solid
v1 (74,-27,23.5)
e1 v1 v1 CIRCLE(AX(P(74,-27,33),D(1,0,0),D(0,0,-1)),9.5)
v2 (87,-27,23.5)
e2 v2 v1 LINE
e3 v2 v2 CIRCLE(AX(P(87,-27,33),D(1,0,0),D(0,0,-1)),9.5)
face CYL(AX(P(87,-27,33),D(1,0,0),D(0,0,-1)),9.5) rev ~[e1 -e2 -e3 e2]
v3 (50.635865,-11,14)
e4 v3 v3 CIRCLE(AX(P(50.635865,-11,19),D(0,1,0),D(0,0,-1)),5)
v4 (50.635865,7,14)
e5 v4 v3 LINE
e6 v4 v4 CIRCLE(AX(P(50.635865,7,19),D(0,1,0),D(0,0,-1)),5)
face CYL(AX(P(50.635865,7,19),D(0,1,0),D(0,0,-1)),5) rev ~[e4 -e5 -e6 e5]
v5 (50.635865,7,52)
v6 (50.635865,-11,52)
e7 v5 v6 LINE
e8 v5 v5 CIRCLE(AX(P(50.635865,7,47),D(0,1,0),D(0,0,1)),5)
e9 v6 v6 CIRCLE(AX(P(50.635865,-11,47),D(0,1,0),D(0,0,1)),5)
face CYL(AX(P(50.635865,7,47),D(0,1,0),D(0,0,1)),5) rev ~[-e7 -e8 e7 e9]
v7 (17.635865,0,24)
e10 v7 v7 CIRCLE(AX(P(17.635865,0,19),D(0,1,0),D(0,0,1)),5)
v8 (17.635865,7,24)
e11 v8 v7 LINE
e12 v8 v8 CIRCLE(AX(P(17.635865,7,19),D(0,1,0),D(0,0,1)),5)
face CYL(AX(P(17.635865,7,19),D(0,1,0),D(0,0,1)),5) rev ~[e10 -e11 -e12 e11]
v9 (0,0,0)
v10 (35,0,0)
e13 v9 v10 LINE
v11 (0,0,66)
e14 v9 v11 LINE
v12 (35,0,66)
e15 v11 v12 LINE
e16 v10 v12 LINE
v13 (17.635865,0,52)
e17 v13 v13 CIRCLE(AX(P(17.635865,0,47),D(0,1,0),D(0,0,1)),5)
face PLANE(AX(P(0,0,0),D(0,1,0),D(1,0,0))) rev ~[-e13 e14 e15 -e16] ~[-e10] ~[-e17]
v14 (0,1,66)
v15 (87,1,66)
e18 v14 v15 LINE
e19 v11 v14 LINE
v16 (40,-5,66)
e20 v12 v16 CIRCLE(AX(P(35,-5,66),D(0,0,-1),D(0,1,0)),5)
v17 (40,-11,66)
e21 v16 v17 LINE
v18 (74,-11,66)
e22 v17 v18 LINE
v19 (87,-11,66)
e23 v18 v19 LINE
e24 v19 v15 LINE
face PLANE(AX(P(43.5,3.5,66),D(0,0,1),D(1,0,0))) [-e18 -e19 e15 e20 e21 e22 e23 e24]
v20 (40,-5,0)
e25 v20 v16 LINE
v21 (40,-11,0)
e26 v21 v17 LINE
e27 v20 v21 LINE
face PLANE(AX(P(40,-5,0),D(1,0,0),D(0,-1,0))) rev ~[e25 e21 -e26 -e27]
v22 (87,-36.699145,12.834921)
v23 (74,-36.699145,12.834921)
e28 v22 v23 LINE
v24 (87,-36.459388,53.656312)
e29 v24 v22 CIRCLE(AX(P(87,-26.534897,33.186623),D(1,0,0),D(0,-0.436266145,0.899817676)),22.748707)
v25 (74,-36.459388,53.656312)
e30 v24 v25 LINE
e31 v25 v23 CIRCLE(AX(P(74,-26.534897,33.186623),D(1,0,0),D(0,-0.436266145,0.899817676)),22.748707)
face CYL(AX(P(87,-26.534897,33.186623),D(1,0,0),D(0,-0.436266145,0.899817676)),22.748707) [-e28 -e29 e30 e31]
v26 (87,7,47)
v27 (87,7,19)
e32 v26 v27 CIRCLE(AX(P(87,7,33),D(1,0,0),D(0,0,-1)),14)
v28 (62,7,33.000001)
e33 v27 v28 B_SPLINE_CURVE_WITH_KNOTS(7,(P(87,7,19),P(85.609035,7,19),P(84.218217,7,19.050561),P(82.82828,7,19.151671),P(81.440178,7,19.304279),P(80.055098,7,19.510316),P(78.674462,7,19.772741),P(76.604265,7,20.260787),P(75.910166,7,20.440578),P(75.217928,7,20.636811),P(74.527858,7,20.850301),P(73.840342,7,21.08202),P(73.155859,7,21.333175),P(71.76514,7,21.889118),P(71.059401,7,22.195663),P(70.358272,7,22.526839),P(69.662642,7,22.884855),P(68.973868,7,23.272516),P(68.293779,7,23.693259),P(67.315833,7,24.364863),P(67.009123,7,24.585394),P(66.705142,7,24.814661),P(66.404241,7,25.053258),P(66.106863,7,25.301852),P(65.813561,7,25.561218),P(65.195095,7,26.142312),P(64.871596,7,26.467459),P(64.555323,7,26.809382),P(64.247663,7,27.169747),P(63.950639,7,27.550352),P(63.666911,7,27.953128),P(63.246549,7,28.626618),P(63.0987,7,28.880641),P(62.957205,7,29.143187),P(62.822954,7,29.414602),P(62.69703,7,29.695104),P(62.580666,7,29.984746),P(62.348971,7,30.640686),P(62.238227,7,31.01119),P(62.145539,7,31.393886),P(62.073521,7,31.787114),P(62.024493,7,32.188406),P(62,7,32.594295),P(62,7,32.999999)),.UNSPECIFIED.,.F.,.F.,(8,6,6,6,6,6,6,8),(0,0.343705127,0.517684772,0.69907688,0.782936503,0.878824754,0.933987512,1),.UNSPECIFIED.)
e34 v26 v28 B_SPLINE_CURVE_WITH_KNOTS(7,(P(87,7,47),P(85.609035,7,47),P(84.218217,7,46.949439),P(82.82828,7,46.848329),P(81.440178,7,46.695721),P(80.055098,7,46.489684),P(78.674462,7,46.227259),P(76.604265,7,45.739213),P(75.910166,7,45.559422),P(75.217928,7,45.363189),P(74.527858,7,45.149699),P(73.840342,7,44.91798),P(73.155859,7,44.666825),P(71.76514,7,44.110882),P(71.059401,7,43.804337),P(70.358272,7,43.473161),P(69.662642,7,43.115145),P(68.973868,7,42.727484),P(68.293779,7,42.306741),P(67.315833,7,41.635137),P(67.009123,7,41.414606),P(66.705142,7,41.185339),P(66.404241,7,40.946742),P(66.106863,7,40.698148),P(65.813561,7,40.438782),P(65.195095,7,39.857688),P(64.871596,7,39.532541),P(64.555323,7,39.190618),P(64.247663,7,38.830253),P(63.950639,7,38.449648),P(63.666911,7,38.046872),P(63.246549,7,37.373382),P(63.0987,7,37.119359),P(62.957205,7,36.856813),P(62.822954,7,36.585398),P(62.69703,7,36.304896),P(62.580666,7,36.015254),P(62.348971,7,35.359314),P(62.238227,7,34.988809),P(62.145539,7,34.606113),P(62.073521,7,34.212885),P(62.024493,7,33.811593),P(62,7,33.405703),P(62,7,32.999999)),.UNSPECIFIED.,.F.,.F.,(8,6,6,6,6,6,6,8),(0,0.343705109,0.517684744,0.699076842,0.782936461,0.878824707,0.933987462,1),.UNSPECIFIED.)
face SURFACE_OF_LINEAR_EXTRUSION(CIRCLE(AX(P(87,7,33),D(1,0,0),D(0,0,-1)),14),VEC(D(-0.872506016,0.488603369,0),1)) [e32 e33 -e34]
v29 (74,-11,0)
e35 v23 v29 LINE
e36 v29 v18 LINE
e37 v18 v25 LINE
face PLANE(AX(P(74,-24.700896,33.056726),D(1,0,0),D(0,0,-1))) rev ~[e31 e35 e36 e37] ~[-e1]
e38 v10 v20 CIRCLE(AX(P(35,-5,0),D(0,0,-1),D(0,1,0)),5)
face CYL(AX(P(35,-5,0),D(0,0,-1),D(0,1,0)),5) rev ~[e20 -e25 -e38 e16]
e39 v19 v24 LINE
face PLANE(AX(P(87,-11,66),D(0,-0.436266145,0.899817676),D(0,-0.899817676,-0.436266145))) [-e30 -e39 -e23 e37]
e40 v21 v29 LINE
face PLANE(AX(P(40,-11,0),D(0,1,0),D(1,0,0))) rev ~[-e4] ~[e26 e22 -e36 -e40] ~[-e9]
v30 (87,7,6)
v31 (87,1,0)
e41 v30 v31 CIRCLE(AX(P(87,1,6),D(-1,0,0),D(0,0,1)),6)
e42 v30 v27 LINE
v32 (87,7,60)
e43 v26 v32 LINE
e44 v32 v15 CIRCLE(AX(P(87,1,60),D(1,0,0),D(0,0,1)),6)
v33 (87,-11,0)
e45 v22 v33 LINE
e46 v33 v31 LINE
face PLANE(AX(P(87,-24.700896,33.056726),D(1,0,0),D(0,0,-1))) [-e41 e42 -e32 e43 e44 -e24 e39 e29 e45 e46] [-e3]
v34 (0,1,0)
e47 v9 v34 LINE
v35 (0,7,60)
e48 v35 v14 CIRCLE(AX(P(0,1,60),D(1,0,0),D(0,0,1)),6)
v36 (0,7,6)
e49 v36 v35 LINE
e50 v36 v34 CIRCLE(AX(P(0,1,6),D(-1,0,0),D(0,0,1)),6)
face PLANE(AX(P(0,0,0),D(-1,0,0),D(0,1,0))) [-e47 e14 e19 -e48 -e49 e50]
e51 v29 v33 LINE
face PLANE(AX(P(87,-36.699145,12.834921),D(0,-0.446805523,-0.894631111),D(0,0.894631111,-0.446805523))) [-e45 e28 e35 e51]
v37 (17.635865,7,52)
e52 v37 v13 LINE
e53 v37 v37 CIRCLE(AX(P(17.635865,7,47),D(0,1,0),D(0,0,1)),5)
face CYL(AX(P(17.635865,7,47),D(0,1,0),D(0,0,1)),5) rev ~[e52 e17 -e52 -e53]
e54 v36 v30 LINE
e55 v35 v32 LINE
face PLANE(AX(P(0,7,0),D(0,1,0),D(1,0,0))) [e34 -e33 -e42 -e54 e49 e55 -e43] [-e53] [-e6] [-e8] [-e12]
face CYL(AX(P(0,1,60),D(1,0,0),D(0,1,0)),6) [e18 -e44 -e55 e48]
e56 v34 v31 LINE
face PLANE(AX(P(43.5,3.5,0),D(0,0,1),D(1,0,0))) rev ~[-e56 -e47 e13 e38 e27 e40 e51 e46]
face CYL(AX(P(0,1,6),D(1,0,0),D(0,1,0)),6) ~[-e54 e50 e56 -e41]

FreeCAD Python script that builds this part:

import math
import FreeCAD as App
import Part
import Sketcher

V = App.Vector


def edges_at(feature, points):
    """Names of the edges that pass closest to the given points."""
    edges = feature.Shape.Edges
    near = lambda p: min(range(len(edges)), key=lambda i: edges[i].distToShape(Part.Vertex(*p))[0])
    return sorted({f"Edge{near(p) + 1}" for p in points})

doc = App.newDocument("Part")
body = doc.addObject("PartDesign::Body", "Body")

# Sketch on XY plane
sketch1 = doc.addObject("Sketcher::SketchObject", "Sketch")
body.addObject(sketch1)
sketch1.AttachmentSupport = (doc.XY_Plane, [""])
sketch1.MapMode = "FlatFace"
sketch1.addGeometry(Part.LineSegment(V(0, 7, 0), V(0, 0, 0)), False)
sketch1.addGeometry(Part.LineSegment(V(0, 0, 0), V(35, 0, 0)), False)
sketch1.addGeometry(Part.ArcOfCircle(Part.Circle(V(35, -5, 0), V(0, 0, 1), 5), math.radians(0), math.radians(90)), False)
sketch1.addGeometry(Part.LineSegment(V(40, -5, 0), V(40, -11, 0)), False)
sketch1.addGeometry(Part.LineSegment(V(40, -11, 0), V(87, -11, 0)), False)
sketch1.addGeometry(Part.LineSegment(V(87, -11, 0), V(87, 7, 0)), False)
sketch1.addGeometry(Part.LineSegment(V(87, 7, 0), V(0, 7, 0)), False)
sketch1.addConstraint(Sketcher.Constraint("Coincident", 0, 2, 1, 1))
sketch1.addConstraint(Sketcher.Constraint("Tangent", 1, 2, 2, 2))
sketch1.addConstraint(Sketcher.Constraint("Tangent", 2, 1, 3, 1))
sketch1.addConstraint(Sketcher.Constraint("Coincident", 3, 2, 4, 1))
sketch1.addConstraint(Sketcher.Constraint("Coincident", 4, 2, 5, 1))
sketch1.addConstraint(Sketcher.Constraint("Coincident", 5, 2, 6, 1))
sketch1.addConstraint(Sketcher.Constraint("Coincident", 6, 2, 0, 1))
sketch1.addConstraint(Sketcher.Constraint("Vertical", 0))
sketch1.addConstraint(Sketcher.Constraint("Horizontal", 1))
sketch1.addConstraint(Sketcher.Constraint("Vertical", 3))
sketch1.addConstraint(Sketcher.Constraint("Horizontal", 4))
sketch1.addConstraint(Sketcher.Constraint("Vertical", 5))
sketch1.addConstraint(Sketcher.Constraint("Horizontal", 6))
sketch1.addConstraint(Sketcher.Constraint("Coincident", 0, 2, -1, 1))
sketch1.addConstraint(Sketcher.Constraint("Radius", 2, 5.0))
sketch1.addConstraint(Sketcher.Constraint("DistanceX", 1, 1, 1, 2, 35.0))
sketch1.addConstraint(Sketcher.Constraint("DistanceX", 4, 1, 4, 2, 47.0))
sketch1.addConstraint(Sketcher.Constraint("DistanceY", 0, 2, 0, 1, 7.0))
sketch1.addConstraint(Sketcher.Constraint("DistanceY", 3, 2, 3, 1, 6.0))
pad1 = doc.addObject("PartDesign::Pad", "Pad")
body.addObject(pad1)
pad1.Profile = sketch1
pad1.Length = 66
doc.recompute()

fillet = doc.addObject("PartDesign::Fillet", "Fillet")
body.addObject(fillet)
fillet.Base = (pad1, edges_at(pad1, [(43.5, 7, 66), (43.5, 7, 0)]))
fillet.Radius = 6

# Sketch on XZ plane
sketch2 = doc.addObject("Sketcher::SketchObject", "Sketch001")
body.addObject(sketch2)
sketch2.AttachmentSupport = (doc.XZ_Plane, [""])
sketch2.MapMode = "FlatFace"
sketch2.AttachmentOffset = App.Placement(V(0, 0, -7), App.Rotation())
sketch2.addGeometry(Part.Circle(V(51, 47, 0), V(0, 0, 1), 5), False)
sketch2.addGeometry(Part.Circle(V(18, 47, 0), V(0, 0, 1), 5), False)
sketch2.addGeometry(Part.Circle(V(51, 19, 0), V(0, 0, 1), 5), False)
sketch2.addGeometry(Part.Circle(V(18, 19, 0), V(0, 0, 1), 5), False)
sketch2.addConstraint(Sketcher.Constraint("Equal", 0, 1))
sketch2.addConstraint(Sketcher.Constraint("Equal", 1, 2))
sketch2.addConstraint(Sketcher.Constraint("Equal", 2, 3))
sketch2.addConstraint(Sketcher.Constraint("Horizontal", 0, 3, 1, 3))
sketch2.addConstraint(Sketcher.Constraint("Horizontal", 2, 3, 3, 3))
sketch2.addConstraint(Sketcher.Constraint("Vertical", 0, 3, 2, 3))
sketch2.addConstraint(Sketcher.Constraint("Vertical", 1, 3, 3, 3))
sketch2.addConstraint(Sketcher.Constraint("Diameter", 0, 10.0))
sketch2.addConstraint(Sketcher.Constraint("DistanceY", -1, 1, 0, 3, 47.0))
sketch2.addConstraint(Sketcher.Constraint("DistanceY", -1, 1, 2, 3, 19.0))
sketch2.addConstraint(Sketcher.Constraint("DistanceX", 1, 3, 0, 3, 33.0))
sketch2.addConstraint(Sketcher.Constraint("DistanceX", -1, 1, 0, 3, 50.635865))
pocket1 = doc.addObject("PartDesign::Pocket", "Pocket")
body.addObject(pocket1)
pocket1.Profile = sketch2
pocket1.Type = "ThroughAll"
pocket1.Reversed = True

# Sketch on YZ plane
sketch3 = doc.addObject("Sketcher::SketchObject", "Sketch002")
body.addObject(sketch3)
sketch3.AttachmentSupport = (doc.YZ_Plane, [""])
sketch3.MapMode = "FlatFace"
sketch3.AttachmentOffset = App.Placement(V(0, 0, 87), App.Rotation())
sketch3.addGeometry(Part.LineSegment(V(-11, 0, 0), V(-11, 66, 0)), False)
sketch3.addGeometry(Part.LineSegment(V(-11, 66, 0), V(-36.459388, 53.656312, 0)), False)
sketch3.addGeometry(Part.ArcOfCircle(Part.Circle(V(-26.534897, 33.186623, 0), V(0, 0, 1), 22.748707), math.radians(115.865888), math.radians(243.461086)), False)
sketch3.addGeometry(Part.LineSegment(V(-36.699145, 12.834921, 0), V(-11, 0, 0)), False)
sketch3.addGeometry(Part.Circle(V(-27, 33, 0), V(0, 0, 1), 9.5), False)
sketch3.addConstraint(Sketcher.Constraint("Coincident", 0, 2, 1, 1))
sketch3.addConstraint(Sketcher.Constraint("Coincident", 1, 2, 2, 1))
sketch3.addConstraint(Sketcher.Constraint("Coincident", 2, 2, 3, 1))
sketch3.addConstraint(Sketcher.Constraint("Coincident", 3, 2, 0, 1))
sketch3.addConstraint(Sketcher.Constraint("Vertical", 0))
sketch3.addConstraint(Sketcher.Constraint("PointOnObject", 3, 2, -1))
sketch3.addConstraint(Sketcher.Constraint("Diameter", 4, 19.0))
sketch3.addConstraint(Sketcher.Constraint("DistanceY", 0, 1, 0, 2, 66.0))
sketch3.addConstraint(Sketcher.Constraint("DistanceX", 4, 3, -1, 1, 27.0))
sketch3.addConstraint(Sketcher.Constraint("DistanceY", -1, 1, 4, 3, 33.0))
sketch3.addConstraint(Sketcher.Constraint("DistanceX", 0, 2, -1, 1, 11.0))
sketch3.addConstraint(Sketcher.Constraint("Radius", 2, 22.748707))
sketch3.addConstraint(Sketcher.Constraint("DistanceY", 2, 2, 2, 3, 20.351701))
sketch3.addConstraint(Sketcher.Constraint("Distance", 1, 28.29394))
sketch3.addConstraint(Sketcher.Constraint("Distance", 3, 28.725968))
sketch3.addConstraint(Sketcher.Constraint("DistanceY", -1, 1, 1, 2, 53.656312))
pad2 = doc.addObject("PartDesign::Pad", "Pad001")
body.addObject(pad2)
pad2.Profile = sketch3
pad2.Length = 13
pad2.Reversed = True

# Sketch on YZ plane
sketch4 = doc.addObject("Sketcher::SketchObject", "Sketch003")
body.addObject(sketch4)
sketch4.AttachmentSupport = (doc.YZ_Plane, [""])
sketch4.MapMode = "FlatFace"
sketch4.AttachmentOffset = App.Placement(V(0, 0, 87), App.Rotation())
sketch4.addGeometry(Part.Circle(V(7, 33, 0), V(0, 0, 1), 14), False)
sketch4.addConstraint(Sketcher.Constraint("Diameter", 0, 28.0))
sketch4.addConstraint(Sketcher.Constraint("DistanceX", -1, 1, 0, 3, 7.0))
sketch4.addConstraint(Sketcher.Constraint("DistanceY", -1, 1, 0, 3, 33.0))

# Sketch on an angled plane
sketch5 = doc.addObject("Sketcher::SketchObject", "Sketch004")
body.addObject(sketch5)
sketch5.Placement = App.Placement(V(17.785627, 31.760049, 0), App.Rotation(V(-0.872506016, 0.488603369, 0), V(0, 0, 1), V(0.488603369, 0.872506016, 0), "ZXY"))
sketch5.addGeometry(Part.LineSegment(V(-79, 33, 0), V(-51, 33, 0)), False)
sketch5.addConstraint(Sketcher.Constraint("Horizontal", 0))
sketch5.addConstraint(Sketcher.Constraint("DistanceY", -1, 1, 0, 1, 33.0))
sketch5.addConstraint(Sketcher.Constraint("DistanceX", 0, 1, 0, 2, 28.653098))
sketch5.addConstraint(Sketcher.Constraint("DistanceX", 0, 2, -1, 1, 50.675149))
doc.recompute()

subtractivepipe = doc.addObject("PartDesign::SubtractivePipe", "SubtractivePipe")
body.addObject(subtractivepipe)
subtractivepipe.Profile = sketch4
subtractivepipe.Spine = (sketch5, ["Edge1"])

doc.recompute()
